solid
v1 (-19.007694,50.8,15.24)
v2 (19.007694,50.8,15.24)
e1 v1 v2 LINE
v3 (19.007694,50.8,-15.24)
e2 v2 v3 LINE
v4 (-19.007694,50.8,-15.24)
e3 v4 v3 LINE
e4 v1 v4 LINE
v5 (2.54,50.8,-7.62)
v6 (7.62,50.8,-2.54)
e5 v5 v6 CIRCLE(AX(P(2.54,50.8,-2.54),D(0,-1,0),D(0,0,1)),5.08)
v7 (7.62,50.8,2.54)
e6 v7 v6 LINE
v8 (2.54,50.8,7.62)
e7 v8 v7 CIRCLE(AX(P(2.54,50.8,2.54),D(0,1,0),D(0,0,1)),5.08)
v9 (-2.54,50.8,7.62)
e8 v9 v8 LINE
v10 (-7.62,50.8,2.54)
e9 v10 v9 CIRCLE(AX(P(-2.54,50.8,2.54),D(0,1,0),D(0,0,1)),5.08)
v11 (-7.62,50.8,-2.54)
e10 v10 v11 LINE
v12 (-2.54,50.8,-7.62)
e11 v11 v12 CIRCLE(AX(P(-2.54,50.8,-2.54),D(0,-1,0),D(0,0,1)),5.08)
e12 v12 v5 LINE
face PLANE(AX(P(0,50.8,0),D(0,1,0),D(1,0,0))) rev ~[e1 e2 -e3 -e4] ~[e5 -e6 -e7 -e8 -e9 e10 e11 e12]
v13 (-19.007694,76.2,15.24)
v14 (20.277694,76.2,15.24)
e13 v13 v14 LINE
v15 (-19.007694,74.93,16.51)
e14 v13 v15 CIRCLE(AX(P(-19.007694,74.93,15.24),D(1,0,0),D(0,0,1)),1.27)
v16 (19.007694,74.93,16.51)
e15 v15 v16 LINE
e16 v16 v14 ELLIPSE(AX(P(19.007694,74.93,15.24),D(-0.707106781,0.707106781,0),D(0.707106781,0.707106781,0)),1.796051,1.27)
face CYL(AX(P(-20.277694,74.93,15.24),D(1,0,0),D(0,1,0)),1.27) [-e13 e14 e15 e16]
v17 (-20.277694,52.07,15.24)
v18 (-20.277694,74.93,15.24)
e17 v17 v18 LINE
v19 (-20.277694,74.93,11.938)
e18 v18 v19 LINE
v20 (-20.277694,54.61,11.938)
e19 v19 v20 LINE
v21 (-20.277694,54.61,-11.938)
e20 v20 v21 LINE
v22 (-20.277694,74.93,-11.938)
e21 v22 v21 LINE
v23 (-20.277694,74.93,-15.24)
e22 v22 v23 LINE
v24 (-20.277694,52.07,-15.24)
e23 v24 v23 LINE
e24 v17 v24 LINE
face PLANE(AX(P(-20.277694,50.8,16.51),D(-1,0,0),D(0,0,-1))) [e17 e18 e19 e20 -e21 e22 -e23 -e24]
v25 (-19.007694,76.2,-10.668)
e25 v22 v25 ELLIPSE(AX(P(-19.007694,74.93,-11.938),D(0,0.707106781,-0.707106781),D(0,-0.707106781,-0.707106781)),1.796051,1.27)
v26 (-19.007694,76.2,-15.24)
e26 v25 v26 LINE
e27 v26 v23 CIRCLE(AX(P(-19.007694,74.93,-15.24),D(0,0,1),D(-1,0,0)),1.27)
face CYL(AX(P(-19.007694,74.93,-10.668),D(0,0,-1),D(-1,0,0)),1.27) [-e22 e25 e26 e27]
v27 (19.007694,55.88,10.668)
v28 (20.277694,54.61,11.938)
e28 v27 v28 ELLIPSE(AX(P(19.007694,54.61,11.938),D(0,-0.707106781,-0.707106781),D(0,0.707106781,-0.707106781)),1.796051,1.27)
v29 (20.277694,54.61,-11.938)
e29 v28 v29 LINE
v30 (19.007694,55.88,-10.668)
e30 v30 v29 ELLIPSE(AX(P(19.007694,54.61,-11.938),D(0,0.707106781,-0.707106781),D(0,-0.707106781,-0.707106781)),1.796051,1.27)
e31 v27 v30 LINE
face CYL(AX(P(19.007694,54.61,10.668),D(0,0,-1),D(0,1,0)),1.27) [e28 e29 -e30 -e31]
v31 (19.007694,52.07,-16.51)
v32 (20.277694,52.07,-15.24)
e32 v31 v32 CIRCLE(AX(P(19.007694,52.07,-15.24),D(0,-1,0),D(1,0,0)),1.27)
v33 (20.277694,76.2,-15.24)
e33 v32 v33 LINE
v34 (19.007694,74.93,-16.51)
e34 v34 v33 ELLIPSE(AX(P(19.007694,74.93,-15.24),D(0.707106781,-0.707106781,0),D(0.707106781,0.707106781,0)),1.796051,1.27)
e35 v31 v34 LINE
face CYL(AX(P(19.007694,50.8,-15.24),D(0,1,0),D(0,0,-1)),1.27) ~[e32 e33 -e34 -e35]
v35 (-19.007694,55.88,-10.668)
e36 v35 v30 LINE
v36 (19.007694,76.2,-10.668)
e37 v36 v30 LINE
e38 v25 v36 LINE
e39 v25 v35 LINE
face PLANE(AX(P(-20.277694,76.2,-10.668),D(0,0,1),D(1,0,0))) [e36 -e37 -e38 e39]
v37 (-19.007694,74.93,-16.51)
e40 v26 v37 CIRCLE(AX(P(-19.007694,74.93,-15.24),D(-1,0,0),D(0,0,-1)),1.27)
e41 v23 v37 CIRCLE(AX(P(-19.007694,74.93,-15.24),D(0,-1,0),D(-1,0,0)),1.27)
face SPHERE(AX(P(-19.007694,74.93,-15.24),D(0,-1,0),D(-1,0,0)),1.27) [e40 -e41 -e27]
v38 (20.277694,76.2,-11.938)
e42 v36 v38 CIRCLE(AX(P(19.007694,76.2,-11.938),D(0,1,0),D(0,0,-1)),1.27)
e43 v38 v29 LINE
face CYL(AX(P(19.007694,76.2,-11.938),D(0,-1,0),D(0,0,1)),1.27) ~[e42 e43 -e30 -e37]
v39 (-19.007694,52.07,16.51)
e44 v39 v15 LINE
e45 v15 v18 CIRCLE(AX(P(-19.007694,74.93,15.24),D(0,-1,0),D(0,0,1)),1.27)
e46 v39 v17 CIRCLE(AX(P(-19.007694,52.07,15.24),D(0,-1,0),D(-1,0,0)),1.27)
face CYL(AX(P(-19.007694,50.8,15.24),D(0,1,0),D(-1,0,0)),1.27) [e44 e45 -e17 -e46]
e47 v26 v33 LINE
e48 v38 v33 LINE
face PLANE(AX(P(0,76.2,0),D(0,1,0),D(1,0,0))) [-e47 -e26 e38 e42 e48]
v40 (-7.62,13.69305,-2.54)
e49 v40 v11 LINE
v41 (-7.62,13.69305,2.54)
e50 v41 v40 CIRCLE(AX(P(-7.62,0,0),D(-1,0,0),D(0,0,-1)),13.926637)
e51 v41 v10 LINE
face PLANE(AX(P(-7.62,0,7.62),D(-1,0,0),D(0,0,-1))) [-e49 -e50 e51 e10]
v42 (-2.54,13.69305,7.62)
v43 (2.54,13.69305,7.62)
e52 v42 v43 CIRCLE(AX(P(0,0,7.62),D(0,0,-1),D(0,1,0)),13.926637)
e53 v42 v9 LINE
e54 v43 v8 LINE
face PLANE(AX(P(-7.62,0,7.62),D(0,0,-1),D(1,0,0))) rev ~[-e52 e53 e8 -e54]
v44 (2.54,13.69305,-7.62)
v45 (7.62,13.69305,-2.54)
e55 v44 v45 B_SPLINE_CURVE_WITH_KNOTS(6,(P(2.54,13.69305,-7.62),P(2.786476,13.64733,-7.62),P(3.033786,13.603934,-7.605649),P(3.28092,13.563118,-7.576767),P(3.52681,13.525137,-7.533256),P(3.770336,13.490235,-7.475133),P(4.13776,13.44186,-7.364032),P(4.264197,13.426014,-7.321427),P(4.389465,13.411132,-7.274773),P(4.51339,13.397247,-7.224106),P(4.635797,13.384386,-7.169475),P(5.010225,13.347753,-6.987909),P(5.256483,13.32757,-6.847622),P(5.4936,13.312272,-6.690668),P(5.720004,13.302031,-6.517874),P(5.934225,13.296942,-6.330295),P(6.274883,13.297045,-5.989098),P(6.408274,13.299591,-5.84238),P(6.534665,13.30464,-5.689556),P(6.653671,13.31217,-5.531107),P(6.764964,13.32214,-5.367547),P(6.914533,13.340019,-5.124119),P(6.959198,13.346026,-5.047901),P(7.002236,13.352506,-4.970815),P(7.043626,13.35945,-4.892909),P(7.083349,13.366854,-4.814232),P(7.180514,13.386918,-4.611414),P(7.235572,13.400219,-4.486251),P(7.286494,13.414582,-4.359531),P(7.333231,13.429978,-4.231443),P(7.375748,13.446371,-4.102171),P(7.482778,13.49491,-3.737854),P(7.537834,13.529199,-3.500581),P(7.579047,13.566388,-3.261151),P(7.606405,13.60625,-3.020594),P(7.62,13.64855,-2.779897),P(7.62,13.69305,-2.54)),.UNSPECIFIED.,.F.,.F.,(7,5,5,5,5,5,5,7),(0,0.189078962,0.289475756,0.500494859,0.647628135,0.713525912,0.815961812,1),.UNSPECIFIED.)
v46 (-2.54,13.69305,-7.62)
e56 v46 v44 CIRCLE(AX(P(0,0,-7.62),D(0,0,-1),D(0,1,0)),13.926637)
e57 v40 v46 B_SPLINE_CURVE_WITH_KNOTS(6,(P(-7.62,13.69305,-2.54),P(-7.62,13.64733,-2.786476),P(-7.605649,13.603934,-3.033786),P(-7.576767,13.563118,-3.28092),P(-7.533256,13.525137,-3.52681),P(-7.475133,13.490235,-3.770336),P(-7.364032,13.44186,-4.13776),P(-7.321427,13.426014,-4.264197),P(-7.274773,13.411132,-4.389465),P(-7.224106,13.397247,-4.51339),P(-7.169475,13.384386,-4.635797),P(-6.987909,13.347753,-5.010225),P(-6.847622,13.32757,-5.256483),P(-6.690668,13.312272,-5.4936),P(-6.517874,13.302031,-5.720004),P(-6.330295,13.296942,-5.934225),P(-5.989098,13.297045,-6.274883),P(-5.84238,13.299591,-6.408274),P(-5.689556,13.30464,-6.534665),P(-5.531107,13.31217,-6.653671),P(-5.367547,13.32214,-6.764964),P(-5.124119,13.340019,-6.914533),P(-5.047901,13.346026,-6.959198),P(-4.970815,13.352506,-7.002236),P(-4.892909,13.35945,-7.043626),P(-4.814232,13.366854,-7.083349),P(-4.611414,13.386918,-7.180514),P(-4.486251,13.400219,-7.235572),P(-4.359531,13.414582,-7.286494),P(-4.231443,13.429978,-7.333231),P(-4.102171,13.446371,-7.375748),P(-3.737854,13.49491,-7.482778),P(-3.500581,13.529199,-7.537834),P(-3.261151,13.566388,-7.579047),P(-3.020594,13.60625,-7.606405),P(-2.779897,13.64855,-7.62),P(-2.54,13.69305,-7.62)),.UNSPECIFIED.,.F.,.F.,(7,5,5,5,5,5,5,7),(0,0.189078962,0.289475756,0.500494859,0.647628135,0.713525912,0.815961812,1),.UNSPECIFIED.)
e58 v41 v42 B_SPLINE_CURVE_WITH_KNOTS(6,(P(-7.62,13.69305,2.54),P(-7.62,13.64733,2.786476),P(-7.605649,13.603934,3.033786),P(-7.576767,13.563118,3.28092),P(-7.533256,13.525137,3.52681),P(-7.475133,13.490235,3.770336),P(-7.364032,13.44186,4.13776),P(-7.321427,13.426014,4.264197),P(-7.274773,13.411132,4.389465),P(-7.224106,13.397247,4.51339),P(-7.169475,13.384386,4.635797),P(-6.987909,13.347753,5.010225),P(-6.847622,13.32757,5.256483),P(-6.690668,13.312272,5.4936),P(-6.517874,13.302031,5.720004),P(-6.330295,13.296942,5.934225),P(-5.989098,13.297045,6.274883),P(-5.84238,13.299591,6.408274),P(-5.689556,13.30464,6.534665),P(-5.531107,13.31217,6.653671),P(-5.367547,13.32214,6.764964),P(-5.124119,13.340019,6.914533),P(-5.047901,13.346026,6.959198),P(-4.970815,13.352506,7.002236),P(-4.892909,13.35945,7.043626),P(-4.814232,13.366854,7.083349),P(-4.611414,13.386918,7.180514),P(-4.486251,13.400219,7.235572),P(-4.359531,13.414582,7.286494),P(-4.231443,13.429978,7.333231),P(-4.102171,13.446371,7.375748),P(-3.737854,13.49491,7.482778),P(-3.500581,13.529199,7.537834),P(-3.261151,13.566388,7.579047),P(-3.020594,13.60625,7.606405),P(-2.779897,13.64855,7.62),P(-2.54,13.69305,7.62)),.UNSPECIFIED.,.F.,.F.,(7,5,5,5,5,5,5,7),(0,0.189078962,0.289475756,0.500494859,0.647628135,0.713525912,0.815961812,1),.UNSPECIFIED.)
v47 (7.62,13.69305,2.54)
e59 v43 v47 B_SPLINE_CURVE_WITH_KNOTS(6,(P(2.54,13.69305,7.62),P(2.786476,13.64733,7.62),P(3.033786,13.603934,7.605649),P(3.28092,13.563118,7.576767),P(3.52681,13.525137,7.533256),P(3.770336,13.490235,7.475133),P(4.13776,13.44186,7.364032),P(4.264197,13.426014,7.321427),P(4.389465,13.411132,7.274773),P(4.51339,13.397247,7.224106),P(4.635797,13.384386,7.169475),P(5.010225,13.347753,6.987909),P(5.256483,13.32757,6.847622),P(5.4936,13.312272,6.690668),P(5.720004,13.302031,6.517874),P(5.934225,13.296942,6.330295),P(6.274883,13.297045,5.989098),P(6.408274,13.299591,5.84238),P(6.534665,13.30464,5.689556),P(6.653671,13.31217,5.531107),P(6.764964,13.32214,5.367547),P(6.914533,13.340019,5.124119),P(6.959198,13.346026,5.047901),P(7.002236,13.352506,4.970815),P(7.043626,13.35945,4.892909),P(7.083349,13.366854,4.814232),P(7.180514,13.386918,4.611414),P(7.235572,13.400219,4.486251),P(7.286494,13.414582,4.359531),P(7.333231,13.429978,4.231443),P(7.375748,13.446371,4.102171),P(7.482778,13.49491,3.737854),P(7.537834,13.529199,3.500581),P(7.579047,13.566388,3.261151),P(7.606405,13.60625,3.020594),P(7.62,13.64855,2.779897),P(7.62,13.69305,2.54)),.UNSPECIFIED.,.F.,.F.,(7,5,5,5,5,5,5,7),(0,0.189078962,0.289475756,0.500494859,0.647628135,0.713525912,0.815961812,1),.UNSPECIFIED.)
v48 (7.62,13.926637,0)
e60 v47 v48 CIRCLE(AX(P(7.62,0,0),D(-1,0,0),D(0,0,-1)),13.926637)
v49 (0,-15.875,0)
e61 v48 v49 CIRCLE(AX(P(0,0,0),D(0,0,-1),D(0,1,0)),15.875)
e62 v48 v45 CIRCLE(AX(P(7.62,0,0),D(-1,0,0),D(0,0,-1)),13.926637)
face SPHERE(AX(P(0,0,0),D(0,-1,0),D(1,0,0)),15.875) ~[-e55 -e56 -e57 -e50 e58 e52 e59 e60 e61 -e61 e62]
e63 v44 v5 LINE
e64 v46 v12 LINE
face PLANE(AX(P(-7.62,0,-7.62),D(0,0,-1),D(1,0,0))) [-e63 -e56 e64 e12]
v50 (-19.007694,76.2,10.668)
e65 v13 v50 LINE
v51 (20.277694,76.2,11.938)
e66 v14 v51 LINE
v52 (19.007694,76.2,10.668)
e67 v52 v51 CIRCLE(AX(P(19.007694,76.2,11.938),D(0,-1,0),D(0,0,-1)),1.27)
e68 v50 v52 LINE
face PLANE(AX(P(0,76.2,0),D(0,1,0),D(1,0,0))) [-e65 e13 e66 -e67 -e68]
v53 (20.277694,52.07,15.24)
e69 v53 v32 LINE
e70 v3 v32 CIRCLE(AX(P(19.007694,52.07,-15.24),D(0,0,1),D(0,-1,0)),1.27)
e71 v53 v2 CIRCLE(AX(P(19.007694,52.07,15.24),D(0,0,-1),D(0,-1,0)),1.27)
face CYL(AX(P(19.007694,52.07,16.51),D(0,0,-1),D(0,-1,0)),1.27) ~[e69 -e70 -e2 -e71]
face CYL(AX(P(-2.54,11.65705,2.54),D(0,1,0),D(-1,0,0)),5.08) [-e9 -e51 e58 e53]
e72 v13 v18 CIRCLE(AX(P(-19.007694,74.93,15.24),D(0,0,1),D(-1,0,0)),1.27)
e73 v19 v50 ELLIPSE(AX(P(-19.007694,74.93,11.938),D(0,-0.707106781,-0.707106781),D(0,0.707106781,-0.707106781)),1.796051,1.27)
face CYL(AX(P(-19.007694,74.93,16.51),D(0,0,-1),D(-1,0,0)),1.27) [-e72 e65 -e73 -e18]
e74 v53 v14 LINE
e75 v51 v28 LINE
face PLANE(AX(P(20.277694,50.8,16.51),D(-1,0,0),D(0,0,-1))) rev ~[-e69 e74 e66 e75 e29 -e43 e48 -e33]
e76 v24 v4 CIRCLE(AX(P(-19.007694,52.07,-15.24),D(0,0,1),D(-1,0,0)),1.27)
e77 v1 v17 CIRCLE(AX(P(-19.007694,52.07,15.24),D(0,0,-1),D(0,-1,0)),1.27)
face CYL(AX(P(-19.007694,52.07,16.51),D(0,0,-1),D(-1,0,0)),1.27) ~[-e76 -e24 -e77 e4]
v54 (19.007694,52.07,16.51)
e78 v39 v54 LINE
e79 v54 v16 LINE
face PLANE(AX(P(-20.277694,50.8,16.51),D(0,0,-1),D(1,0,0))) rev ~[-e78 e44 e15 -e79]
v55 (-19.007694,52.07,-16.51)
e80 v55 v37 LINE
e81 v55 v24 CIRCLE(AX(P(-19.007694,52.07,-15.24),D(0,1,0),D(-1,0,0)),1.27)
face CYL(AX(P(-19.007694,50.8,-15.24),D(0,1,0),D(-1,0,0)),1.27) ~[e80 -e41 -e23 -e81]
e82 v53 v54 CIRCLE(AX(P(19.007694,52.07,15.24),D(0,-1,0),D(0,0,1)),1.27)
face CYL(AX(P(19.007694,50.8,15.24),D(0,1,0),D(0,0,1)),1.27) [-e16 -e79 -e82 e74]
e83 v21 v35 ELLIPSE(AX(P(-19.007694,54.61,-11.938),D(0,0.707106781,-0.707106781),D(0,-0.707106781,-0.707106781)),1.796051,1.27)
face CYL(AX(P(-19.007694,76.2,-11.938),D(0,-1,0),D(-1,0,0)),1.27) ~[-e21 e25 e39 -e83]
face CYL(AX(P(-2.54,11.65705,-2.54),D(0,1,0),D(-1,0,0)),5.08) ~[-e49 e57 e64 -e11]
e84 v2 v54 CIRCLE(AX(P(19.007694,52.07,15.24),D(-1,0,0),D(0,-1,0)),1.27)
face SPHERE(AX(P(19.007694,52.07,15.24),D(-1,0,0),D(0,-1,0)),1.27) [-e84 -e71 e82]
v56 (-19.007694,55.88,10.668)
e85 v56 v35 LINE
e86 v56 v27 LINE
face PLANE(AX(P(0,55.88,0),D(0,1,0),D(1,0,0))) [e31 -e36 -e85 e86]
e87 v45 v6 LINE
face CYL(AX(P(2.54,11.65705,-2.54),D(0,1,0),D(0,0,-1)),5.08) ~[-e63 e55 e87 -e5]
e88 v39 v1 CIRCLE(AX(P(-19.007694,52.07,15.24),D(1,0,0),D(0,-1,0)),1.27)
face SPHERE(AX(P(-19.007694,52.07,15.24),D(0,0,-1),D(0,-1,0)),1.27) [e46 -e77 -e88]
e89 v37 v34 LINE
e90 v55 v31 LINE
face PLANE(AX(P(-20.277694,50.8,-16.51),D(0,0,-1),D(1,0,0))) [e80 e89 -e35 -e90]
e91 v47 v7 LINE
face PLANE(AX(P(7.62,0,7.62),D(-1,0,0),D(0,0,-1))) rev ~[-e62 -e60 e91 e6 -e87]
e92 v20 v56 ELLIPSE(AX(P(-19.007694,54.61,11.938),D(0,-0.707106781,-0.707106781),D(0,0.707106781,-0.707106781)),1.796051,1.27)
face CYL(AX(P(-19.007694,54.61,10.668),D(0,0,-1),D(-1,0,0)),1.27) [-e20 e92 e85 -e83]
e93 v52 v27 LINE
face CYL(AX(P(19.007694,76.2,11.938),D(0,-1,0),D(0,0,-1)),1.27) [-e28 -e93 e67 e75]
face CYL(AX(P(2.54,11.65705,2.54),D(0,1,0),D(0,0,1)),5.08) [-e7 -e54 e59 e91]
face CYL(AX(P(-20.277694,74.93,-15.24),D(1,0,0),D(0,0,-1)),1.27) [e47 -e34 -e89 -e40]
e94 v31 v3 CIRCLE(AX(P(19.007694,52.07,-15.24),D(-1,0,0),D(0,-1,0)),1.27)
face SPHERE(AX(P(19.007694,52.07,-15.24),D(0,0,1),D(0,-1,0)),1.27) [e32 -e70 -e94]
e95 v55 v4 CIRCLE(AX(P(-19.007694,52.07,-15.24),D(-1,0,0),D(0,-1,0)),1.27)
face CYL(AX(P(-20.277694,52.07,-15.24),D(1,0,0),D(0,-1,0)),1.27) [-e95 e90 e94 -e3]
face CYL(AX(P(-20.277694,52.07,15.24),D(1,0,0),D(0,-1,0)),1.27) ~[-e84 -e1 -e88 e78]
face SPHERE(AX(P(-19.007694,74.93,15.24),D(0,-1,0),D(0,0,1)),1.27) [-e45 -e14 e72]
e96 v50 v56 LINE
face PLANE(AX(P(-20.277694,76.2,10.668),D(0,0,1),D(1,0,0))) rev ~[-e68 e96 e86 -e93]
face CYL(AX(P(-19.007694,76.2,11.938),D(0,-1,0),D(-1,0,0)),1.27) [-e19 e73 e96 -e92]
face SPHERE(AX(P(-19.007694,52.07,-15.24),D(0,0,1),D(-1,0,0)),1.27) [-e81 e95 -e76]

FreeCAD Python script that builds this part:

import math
import FreeCAD as App
import Part
import Sketcher
Q = App.Units.Quantity


def edges_at(feature, points):
    """Names of the edges that pass closest to the given points."""
    edges = feature.Shape.Edges
    near = lambda p: min(range(len(edges)), key=lambda i: edges[i].distToShape(Part.Vertex(*p))[0])
    return sorted({f"Edge{near(p) + 1}" for p in points})


def add_polygon(sketch, points):
    """Adds a closed chain of lines whose ends are joined by coincident constraints."""
    first, n = sketch.GeometryCount, len(points)
    for a, b in zip(points, points[1:] + points[:1]):
        sketch.addGeometry(Part.LineSegment(App.Vector(*a, 0), App.Vector(*b, 0)), False)
    for i in range(n):
        sketch.addConstraint(Sketcher.Constraint("Coincident", first + i, 2, first + (i + 1) % n, 1))

doc = App.newDocument("Part")
body = doc.addObject("PartDesign::Body", "Body")

# Sketch on XY plane
sketch1 = body.newObject("Sketcher::SketchObject", "Sketch")
sketch1.AttachmentSupport = (doc.getObject("XY_Plane"), [""])
sketch1.MapMode = "FlatFace"
sketch1.addGeometry([
    Part.LineSegment(App.Vector(0, 16, 0), App.Vector(0, -16, 0)),
    Part.ArcOfCircle(Part.Circle(App.Vector(0, 0, 0), App.Vector(0, 0, 1), 16), math.radians(-90), math.radians(90)),
], False)
sketch1.addConstraint([
    Sketcher.Constraint("Coincident", 0, 1, 1, 2),
    Sketcher.Constraint("Coincident", 1, 1, 0, 2),
    Sketcher.Constraint("Vertical", 0),
    Sketcher.Constraint("Coincident", 1, 3, -1, 1),
    Sketcher.Constraint("PointOnObject", 0, 1, -2),
    Sketcher.Constraint("Radius", 1, Q("0.625 in")),
])
revolution = body.newObject("PartDesign::Revolution", "Revolution")
revolution.Profile = sketch1
revolution.ReferenceAxis = (sketch1, ["V_Axis"])
revolution.Angle = 360

# Sketch on XZ plane
sketch2 = body.newObject("Sketcher::SketchObject", "Sketch001")
sketch2.AttachmentSupport = (doc.getObject("XZ_Plane"), [""])
sketch2.MapMode = "FlatFace"
add_polygon(sketch2, [(-8, -8), (-8, 8), (8, 8), (8, -8)])  # lines 0-3
sketch2.addConstraint([
    Sketcher.Constraint("Vertical", 0),
    Sketcher.Constraint("Horizontal", 1),
    Sketcher.Constraint("Vertical", 2),
    Sketcher.Constraint("Horizontal", 3),
    Sketcher.Constraint("Symmetric", 0, 2, 2, 2, -1, 1),
    Sketcher.Constraint("Equal", 3, 0),
    Sketcher.Constraint("DistanceX", 1, 1, 1, 2, Q("0.6 in")),
])
pad1 = body.newObject("PartDesign::Pad", "Pad")
pad1.Profile = sketch2
pad1.Length = Q("2 in")
pad1.Reversed = True
doc.recompute()

fillet = body.newObject("PartDesign::Fillet", "Fillet")
fillet.Base = (pad1, edges_at(pad1, [
    (-7.62, 31.229, -7.62),
    (-7.62, 31.229, 7.62),
    (7.62, 31.229, 7.62),
    (7.62, 31.229, -7.62),
]))
fillet.Radius = Q("0.2 in")

# Sketch on XZ plane
sketch3 = body.newObject("Sketcher::SketchObject", "Sketch002")
sketch3.AttachmentSupport = (doc.getObject("XZ_Plane"), [""])
sketch3.MapMode = "FlatFace"
sketch3.AttachmentOffset = App.Placement(App.Vector(0, 0, -2 * 25.4), App.Rotation())
add_polygon(sketch3, [(-20, -17), (-20, 17), (20, 17), (20, -17)])  # lines 0-3
sketch3.addConstraint([
    Sketcher.Constraint("Vertical", 0),
    Sketcher.Constraint("Horizontal", 1),
    Sketcher.Constraint("Vertical", 2),
    Sketcher.Constraint("Horizontal", 3),
    Sketcher.Constraint("Symmetric", 0, 2, 2, 2, -1, 1),
    Sketcher.Constraint("DistanceY", 0, 1, 0, 2, Q("1.3 in")),
    Sketcher.Constraint("DistanceX", 1, 1, 1, 2, Q("40.555388 mm")),
])
pad2 = body.newObject("PartDesign::Pad", "Pad001")
pad2.Profile = sketch3
pad2.Length = Q("1 in")
pad2.Reversed = True

# Sketch on XZ plane
sketch4 = body.newObject("Sketcher::SketchObject", "Sketch003")
sketch4.AttachmentSupport = (doc.getObject("XZ_Plane"), [""])
sketch4.MapMode = "FlatFace"
sketch4.AttachmentOffset = App.Placement(App.Vector(0, 0, -3 * 25.4), App.Rotation())
add_polygon(sketch4, [(-20, -11), (-20, 11), (20, 11), (20, -11)])  # lines 0-3
sketch4.addConstraint([
    Sketcher.Constraint("Vertical", 0),
    Sketcher.Constraint("Horizontal", 1),
    Sketcher.Constraint("Vertical", 2),
    Sketcher.Constraint("Horizontal", 3),
    Sketcher.Constraint("Symmetric", 0, 2, 2, 2, -1, 1),
    Sketcher.Constraint("DistanceY", 0, 1, 0, 2, Q("0.84 in")),
    Sketcher.Constraint("DistanceX", 1, 1, 1, 2, Q("40.555388 mm")),
])
pocket1 = body.newObject("PartDesign::Pocket", "Pocket")
pocket1.Profile = sketch4
pocket1.Length = Q("0.8 in")
pocket1.Reversed = True
doc.recompute()

fillet2 = body.newObject("PartDesign::Fillet", "Fillet001")
fillet2.Base = (pocket1, edges_at(pocket1, [
    (-20.278, 50.8, 0),
    (-20.278, 63.5, -16.51),
    (0, 50.8, 16.51),
    (-20.278, 63.5, 16.51),
    (20.278, 50.8, 0),
    (20.278, 63.5, 16.51),
    (0, 50.8, -16.51),
    (20.278, 63.5, -16.51),
    (-20.278, 76.2, -13.589),
    (0, 76.2, 16.51),
    (0, 76.2, -16.51),
    (-20.278, 76.2, 13.589),
    (-20.278, 55.88, 0),
    (-20.278, 66.04, 10.668),
    (-20.278, 66.04, -10.668),
    (20.278, 55.88, 0),
    (20.278, 66.04, -10.668),
    (20.278, 66.04, 10.668),
]))
fillet2.Radius = Q("0.05 in")

# Sketch on XZ plane
sketch5 = body.newObject("Sketcher::SketchObject", "Sketch004")
sketch5.AttachmentSupport = (doc.getObject("XZ_Plane"), [""])
sketch5.MapMode = "FlatFace"
sketch5.AttachmentOffset = App.Placement(App.Vector(0, 0, -2 * 25.4), App.Rotation())
sketch5.addGeometry(Part.Circle(App.Vector(0, 0, 0), App.Vector(0, 0, 1), 11), False)
sketch5.addConstraint([
    Sketcher.Constraint("Coincident", 0, 3, -1, 1),
    Sketcher.Constraint("Diameter", 0, Q("0.9 in")),
])
pad3 = body.newObject("PartDesign::Pad", "Pad002")
pad3.Profile = sketch5
pad3.Length = Q("0.1 in")
pad3.Reversed = True

doc.recompute()
